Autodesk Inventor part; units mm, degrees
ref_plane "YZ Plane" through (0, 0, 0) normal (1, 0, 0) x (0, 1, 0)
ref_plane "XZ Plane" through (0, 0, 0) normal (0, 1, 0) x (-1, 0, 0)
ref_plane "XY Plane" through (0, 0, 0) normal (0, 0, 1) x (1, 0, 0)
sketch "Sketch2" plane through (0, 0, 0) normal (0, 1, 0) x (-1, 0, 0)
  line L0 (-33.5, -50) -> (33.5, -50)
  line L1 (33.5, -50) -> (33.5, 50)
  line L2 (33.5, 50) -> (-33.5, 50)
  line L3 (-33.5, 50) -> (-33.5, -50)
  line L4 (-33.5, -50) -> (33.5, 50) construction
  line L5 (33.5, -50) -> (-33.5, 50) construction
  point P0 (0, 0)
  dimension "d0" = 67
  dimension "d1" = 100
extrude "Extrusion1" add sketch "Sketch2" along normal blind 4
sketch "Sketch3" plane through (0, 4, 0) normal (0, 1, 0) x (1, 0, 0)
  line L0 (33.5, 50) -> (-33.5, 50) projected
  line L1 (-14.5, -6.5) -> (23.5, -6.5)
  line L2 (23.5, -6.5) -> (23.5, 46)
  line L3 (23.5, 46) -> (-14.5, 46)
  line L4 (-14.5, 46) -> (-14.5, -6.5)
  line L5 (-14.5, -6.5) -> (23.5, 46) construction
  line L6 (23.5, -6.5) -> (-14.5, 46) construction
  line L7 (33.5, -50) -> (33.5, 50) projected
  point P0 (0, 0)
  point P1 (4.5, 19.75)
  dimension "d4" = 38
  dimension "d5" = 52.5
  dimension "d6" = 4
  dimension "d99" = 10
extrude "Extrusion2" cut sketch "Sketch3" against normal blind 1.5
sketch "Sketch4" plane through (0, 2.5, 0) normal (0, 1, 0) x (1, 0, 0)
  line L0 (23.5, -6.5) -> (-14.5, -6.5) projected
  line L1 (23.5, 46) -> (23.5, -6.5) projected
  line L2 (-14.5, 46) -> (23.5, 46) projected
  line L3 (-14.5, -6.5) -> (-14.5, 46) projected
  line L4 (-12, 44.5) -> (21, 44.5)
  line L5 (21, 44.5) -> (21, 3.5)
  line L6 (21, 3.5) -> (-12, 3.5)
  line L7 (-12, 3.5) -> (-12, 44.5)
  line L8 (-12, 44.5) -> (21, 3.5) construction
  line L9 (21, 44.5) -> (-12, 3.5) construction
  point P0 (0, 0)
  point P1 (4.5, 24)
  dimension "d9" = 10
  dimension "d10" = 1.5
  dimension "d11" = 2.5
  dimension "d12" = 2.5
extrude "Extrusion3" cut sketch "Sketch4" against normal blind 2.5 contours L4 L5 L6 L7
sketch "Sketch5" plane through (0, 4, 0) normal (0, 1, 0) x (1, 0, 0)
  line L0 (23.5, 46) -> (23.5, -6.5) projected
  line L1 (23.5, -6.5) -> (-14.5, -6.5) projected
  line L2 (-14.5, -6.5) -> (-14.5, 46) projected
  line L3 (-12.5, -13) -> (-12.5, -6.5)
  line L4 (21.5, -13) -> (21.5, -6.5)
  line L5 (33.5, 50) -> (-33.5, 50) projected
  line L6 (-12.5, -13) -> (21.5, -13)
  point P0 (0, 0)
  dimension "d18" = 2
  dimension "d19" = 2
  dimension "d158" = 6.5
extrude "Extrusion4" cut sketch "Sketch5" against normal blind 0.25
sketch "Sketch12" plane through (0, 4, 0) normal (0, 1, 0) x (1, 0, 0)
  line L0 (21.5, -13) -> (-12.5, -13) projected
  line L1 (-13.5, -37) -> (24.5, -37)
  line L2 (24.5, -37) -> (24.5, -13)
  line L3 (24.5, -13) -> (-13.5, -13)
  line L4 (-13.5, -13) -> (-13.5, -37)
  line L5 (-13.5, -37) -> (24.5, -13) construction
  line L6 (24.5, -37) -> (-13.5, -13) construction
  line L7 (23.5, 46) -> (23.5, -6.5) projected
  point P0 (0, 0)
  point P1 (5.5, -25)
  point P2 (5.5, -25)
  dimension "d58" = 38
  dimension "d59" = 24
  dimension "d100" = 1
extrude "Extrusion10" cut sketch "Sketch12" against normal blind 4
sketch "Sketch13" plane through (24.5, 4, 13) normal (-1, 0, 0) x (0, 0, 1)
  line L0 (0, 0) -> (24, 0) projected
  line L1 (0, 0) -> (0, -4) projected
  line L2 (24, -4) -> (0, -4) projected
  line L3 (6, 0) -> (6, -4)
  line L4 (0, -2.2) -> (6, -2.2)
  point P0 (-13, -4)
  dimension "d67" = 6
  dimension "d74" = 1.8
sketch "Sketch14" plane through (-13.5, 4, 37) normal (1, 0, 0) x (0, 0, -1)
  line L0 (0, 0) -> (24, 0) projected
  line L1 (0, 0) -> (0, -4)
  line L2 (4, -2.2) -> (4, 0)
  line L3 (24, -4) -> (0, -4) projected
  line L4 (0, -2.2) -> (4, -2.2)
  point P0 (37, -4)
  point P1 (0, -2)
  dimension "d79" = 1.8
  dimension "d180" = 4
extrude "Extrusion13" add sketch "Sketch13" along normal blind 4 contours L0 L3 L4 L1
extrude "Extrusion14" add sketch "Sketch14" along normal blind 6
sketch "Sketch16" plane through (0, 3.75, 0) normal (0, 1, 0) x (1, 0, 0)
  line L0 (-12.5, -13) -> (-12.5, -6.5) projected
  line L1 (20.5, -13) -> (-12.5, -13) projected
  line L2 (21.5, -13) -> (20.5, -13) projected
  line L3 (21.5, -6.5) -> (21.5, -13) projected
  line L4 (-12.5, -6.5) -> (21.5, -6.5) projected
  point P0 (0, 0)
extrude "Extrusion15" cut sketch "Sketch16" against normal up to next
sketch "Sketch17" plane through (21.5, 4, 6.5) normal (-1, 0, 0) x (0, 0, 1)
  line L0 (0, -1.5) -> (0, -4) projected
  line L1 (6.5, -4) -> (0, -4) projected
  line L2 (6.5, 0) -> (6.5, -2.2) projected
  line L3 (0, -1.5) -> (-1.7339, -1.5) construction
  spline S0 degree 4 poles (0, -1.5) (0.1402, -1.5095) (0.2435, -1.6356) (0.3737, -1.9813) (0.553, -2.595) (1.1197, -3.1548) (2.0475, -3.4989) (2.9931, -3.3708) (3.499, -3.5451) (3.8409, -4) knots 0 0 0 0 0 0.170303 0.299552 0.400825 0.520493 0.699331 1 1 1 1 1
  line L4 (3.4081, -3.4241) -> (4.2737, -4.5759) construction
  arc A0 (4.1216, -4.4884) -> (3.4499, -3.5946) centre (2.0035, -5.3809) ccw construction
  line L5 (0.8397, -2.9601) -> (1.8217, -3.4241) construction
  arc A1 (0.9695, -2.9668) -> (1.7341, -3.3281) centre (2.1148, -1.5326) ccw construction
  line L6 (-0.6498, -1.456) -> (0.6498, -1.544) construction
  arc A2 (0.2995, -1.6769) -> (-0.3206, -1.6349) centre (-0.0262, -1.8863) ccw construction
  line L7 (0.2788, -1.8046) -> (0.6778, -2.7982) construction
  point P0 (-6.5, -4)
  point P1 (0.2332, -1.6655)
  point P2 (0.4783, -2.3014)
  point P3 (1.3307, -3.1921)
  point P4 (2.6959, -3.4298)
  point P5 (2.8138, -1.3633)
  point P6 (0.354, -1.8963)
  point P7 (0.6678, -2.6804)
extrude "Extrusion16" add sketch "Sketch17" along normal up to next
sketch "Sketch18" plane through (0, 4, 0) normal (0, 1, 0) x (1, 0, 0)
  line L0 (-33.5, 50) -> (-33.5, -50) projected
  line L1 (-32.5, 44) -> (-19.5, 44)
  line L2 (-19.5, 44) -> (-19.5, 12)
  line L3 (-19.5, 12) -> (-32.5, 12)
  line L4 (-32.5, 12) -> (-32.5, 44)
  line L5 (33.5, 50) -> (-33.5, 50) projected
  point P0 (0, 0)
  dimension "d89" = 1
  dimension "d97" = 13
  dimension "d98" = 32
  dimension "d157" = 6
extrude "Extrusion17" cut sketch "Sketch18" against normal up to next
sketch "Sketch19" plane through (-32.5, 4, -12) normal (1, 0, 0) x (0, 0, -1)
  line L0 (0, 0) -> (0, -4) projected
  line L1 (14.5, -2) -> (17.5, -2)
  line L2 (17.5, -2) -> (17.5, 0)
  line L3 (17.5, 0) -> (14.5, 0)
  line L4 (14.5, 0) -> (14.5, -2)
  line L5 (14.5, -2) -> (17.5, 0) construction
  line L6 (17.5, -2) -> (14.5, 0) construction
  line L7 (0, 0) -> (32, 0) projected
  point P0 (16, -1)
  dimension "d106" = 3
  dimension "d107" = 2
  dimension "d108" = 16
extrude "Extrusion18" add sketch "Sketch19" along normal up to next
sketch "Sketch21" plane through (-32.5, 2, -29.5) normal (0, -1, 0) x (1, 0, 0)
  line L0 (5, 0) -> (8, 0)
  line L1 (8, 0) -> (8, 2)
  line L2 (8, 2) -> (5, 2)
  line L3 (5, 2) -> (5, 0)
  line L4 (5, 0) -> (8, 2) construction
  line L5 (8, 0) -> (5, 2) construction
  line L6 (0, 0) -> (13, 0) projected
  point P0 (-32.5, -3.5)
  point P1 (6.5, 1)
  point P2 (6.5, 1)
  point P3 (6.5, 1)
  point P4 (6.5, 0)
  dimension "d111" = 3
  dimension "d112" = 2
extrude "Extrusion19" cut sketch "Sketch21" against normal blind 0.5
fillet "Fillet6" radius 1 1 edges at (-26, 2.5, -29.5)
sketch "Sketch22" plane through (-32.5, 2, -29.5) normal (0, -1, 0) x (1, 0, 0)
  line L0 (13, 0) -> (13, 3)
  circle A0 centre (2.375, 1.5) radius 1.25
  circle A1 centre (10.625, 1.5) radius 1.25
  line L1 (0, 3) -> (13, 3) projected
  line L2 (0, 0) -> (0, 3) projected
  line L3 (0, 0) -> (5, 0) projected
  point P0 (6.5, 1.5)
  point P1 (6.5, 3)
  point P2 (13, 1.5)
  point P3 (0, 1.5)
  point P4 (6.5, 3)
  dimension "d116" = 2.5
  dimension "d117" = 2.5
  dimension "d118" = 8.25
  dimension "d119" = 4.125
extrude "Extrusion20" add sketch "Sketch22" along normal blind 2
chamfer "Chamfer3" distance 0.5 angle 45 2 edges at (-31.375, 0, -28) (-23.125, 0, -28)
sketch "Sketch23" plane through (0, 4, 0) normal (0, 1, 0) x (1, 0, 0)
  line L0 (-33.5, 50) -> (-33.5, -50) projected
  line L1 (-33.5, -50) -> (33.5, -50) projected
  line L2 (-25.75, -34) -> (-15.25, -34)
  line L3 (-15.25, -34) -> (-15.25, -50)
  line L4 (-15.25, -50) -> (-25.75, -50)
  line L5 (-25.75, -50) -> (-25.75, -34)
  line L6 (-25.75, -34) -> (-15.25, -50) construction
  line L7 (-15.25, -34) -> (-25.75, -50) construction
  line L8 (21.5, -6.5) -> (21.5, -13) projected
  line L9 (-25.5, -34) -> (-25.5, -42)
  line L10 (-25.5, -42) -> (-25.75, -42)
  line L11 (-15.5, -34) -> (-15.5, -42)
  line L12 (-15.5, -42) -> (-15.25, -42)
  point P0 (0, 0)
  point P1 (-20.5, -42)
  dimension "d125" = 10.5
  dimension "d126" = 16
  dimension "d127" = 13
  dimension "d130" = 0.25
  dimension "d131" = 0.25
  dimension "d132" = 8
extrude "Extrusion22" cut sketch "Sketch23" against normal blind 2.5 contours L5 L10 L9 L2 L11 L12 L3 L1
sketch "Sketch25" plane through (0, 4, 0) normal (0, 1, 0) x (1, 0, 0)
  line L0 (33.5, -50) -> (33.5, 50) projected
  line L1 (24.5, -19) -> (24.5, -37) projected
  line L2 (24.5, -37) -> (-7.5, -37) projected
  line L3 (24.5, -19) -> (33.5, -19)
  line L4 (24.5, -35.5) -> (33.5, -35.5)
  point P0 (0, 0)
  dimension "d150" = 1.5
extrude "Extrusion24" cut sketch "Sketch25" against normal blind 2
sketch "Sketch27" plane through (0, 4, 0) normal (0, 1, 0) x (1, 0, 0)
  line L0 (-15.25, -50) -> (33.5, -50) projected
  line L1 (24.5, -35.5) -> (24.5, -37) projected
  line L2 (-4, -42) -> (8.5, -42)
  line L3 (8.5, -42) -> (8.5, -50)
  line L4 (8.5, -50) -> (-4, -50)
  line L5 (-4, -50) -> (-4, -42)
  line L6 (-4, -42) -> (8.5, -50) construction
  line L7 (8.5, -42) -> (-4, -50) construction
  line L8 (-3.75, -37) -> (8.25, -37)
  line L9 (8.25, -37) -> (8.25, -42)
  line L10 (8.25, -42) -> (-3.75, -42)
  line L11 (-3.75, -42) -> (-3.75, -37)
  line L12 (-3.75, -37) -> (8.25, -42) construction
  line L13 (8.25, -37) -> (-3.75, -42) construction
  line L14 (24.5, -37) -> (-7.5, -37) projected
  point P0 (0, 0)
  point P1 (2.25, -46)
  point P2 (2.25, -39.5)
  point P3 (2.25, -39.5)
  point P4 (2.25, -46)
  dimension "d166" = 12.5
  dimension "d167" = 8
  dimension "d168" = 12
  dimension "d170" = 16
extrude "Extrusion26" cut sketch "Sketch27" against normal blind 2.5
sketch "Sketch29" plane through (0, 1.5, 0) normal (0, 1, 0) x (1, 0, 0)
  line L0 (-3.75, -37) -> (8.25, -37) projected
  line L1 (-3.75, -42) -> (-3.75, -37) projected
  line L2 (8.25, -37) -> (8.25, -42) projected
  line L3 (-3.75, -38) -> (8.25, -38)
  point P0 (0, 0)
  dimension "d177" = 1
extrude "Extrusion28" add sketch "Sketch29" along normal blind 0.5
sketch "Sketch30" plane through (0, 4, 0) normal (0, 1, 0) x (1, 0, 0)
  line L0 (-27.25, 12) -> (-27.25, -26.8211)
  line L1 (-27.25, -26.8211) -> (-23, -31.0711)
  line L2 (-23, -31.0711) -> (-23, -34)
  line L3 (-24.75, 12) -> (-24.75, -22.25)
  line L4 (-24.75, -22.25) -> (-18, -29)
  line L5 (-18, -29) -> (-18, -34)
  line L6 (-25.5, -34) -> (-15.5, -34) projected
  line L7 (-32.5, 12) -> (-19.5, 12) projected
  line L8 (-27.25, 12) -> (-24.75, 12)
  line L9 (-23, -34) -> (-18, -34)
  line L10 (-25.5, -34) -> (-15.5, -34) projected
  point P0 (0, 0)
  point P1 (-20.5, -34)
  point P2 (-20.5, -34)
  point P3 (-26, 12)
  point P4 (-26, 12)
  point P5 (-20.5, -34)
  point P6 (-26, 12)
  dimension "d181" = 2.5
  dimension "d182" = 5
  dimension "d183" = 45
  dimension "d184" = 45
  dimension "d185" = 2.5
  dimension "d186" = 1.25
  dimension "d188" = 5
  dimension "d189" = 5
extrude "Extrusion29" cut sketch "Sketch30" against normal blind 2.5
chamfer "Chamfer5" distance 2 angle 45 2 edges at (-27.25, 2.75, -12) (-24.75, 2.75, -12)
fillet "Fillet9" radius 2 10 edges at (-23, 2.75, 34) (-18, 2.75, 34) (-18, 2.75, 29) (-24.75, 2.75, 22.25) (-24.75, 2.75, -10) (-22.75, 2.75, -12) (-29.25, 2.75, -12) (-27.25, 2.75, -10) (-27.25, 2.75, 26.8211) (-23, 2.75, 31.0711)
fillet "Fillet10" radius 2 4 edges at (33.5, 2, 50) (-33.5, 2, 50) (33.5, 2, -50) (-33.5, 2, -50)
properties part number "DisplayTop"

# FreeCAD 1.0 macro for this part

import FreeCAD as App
import Part
import Sketcher
Q = App.Units.Quantity


def edges_at(feature, points):
    """Names of the edges that pass closest to the given points."""
    edges = feature.Shape.Edges
    near = lambda p: min(range(len(edges)), key=lambda i: edges[i].distToShape(Part.Vertex(*p))[0])
    return sorted({f"Edge{near(p) + 1}" for p in points})

doc = App.newDocument("Part")
body = doc.addObject("PartDesign::Body", "Body")

# Sketch on XZ plane
sketch1 = body.newObject("Sketcher::SketchObject", "Sketch")
sketch1.AttachmentSupport = (doc.getObject("XZ_Plane"), [""])
sketch1.MapMode = "FlatFace"
sketch1.addGeometry([
    Part.LineSegment(App.Vector(34, 50, 0), App.Vector(34, -50, 0)),
    Part.LineSegment(App.Vector(34, -50, 0), App.Vector(-34, -50, 0)),
    Part.LineSegment(App.Vector(-34, -50, 0), App.Vector(-34, 50, 0)),
    Part.LineSegment(App.Vector(-34, 50, 0), App.Vector(34, 50, 0)),
], False)
sketch1.addConstraint([
    Sketcher.Constraint("Coincident", 0, 2, 1, 1),
    Sketcher.Constraint("Coincident", 1, 2, 2, 1),
    Sketcher.Constraint("Coincident", 2, 2, 3, 1),
    Sketcher.Constraint("Coincident", 3, 2, 0, 1),
    Sketcher.Constraint("Vertical", 0),
    Sketcher.Constraint("Horizontal", 1),
    Sketcher.Constraint("Vertical", 2),
    Sketcher.Constraint("Horizontal", 3),
    Sketcher.Constraint("Symmetric", 0, 2, 2, 2, -1, 1),
    Sketcher.Constraint("DistanceX", 1, 2, 1, 1, Q("67 mm")),
    Sketcher.Constraint("DistanceY", 0, 2, 0, 1, Q("100 mm")),
])
pad1 = body.newObject("PartDesign::Pad", "Pad")
pad1.Profile = sketch1
pad1.Length = 4
pad1.Reversed = True

# Sketch on XZ plane
sketch2 = body.newObject("Sketcher::SketchObject", "Sketch001")
sketch2.AttachmentSupport = (doc.getObject("XZ_Plane"), [""])
sketch2.MapMode = "FlatFace"
sketch2.AttachmentOffset = App.Placement(App.Vector(0, 0, -4), App.Rotation())
sketch2.addGeometry([
    Part.LineSegment(App.Vector(-14, -46, 0), App.Vector(-14, 6, 0)),
    Part.LineSegment(App.Vector(-14, 6, 0), App.Vector(24, 6, 0)),
    Part.LineSegment(App.Vector(24, 6, 0), App.Vector(24, -46, 0)),
    Part.LineSegment(App.Vector(24, -46, 0), App.Vector(-14, -46, 0)),
], False)
sketch2.addConstraint([
    Sketcher.Constraint("Coincident", 0, 2, 1, 1),
    Sketcher.Constraint("Coincident", 1, 2, 2, 1),
    Sketcher.Constraint("Coincident", 2, 2, 3, 1),
    Sketcher.Constraint("Coincident", 3, 2, 0, 1),
    Sketcher.Constraint("Vertical", 0),
    Sketcher.Constraint("Horizontal", 1),
    Sketcher.Constraint("Vertical", 2),
    Sketcher.Constraint("Horizontal", 3),
    Sketcher.Constraint("DistanceX", 1, 1, 1, 2, Q("38 mm")),
    Sketcher.Constraint("DistanceY", 0, 1, 0, 2, Q("52.5 mm")),
    Sketcher.Constraint("DistanceY", 2, 2, -1, 1, Q("46 mm")),
    Sketcher.Constraint("DistanceX", 0, 2, -1, 1, Q("14.5 mm")),
])
pocket1 = body.newObject("PartDesign::Pocket", "Pocket")
pocket1.Profile = sketch2
pocket1.Length = 1.5
pocket1.Reversed = True

# Sketch on XZ plane
sketch3 = body.newObject("Sketcher::SketchObject", "Sketch002")
sketch3.AttachmentSupport = (doc.getObject("XZ_Plane"), [""])
sketch3.MapMode = "FlatFace"
sketch3.AttachmentOffset = App.Placement(App.Vector(0, 0, -2.5), App.Rotation())
sketch3.addGeometry([
    Part.LineSegment(App.Vector(21, -44, 0), App.Vector(-12, -44, 0)),
    Part.LineSegment(App.Vector(-12, -44, 0), App.Vector(-12, -4, 0)),
    Part.LineSegment(App.Vector(-12, -4, 0), App.Vector(21, -4, 0)),
    Part.LineSegment(App.Vector(21, -4, 0), App.Vector(21, -44, 0)),
], False)
sketch3.addConstraint([
    Sketcher.Constraint("Coincident", 0, 2, 1, 1),
    Sketcher.Constraint("Coincident", 1, 2, 2, 1),
    Sketcher.Constraint("Coincident", 2, 2, 3, 1),
    Sketcher.Constraint("Coincident", 3, 2, 0, 1),
    Sketcher.Constraint("Horizontal", 0),
    Sketcher.Constraint("Vertical", 1),
    Sketcher.Constraint("Horizontal", 2),
    Sketcher.Constraint("Vertical", 3),
    Sketcher.Constraint("DistanceX", 0, 2, 0, 1, Q("33 mm")),
    Sketcher.Constraint("DistanceY", 1, 1, 1, 2, Q("41 mm")),
    Sketcher.Constraint("DistanceX", 0, 2, -1, 1, Q("12 mm")),
    Sketcher.Constraint("DistanceY", 0, 2, -1, 1, Q("44.5 mm")),
])
pocket2 = body.newObject("PartDesign::Pocket", "Pocket001")
pocket2.Profile = sketch3
pocket2.Length = 2.5
pocket2.Reversed = True

# Sketch on XZ plane
sketch4 = body.newObject("Sketcher::SketchObject", "Sketch003")
sketch4.AttachmentSupport = (doc.getObject("XZ_Plane"), [""])
sketch4.MapMode = "FlatFace"
sketch4.AttachmentOffset = App.Placement(App.Vector(0, 0, -4), App.Rotation())
sketch4.addGeometry([
    Part.LineSegment(App.Vector(22, 13, 0), App.Vector(22, 6, 0)),
    Part.LineSegment(App.Vector(22, 6, 0), App.Vector(-12, 6, 0)),
    Part.LineSegment(App.Vector(-12, 6, 0), App.Vector(-12, 13, 0)),
    Part.LineSegment(App.Vector(-12, 13, 0), App.Vector(22, 13, 0)),
], False)
sketch4.addConstraint([
    Sketcher.Constraint("Coincident", 0, 2, 1, 1),
    Sketcher.Constraint("Coincident", 1, 2, 2, 1),
    Sketcher.Constraint("Coincident", 2, 2, 3, 1),
    Sketcher.Constraint("Coincident", 3, 2, 0, 1),
    Sketcher.Constraint("Vertical", 0),
    Sketcher.Constraint("Horizontal", 1),
    Sketcher.Constraint("Vertical", 2),
    Sketcher.Constraint("Horizontal", 3),
    Sketcher.Constraint("DistanceY", 0, 2, 0, 1, Q("6.5 mm")),
    Sketcher.Constraint("DistanceY", -1, 1, 0, 2, Q("6.5 mm")),
    Sketcher.Constraint("DistanceX", 1, 2, 1, 1, Q("34 mm")),
    Sketcher.Constraint("DistanceX", -1, 1, 0, 2, Q("21.5 mm")),
])
pocket3 = body.newObject("PartDesign::Pocket", "Pocket002")
pocket3.Profile = sketch4
pocket3.Length = 0.25
pocket3.Reversed = True

# Sketch on XZ plane
sketch5 = body.newObject("Sketcher::SketchObject", "Sketch004")
sketch5.AttachmentSupport = (doc.getObject("XZ_Plane"), [""])
sketch5.MapMode = "FlatFace"
sketch5.AttachmentOffset = App.Placement(App.Vector(0, 0, -4), App.Rotation())
sketch5.addGeometry([
    Part.LineSegment(App.Vector(24, 13, 0), App.Vector(-14, 13, 0)),
    Part.LineSegment(App.Vector(-14, 13, 0), App.Vector(-14, 37, 0)),
    Part.LineSegment(App.Vector(-14, 37, 0), App.Vector(24, 37, 0)),
    Part.LineSegment(App.Vector(24, 37, 0), App.Vector(24, 13, 0)),
], False)
sketch5.addConstraint([
    Sketcher.Constraint("Coincident", 0, 2, 1, 1),
    Sketcher.Constraint("Coincident", 1, 2, 2, 1),
    Sketcher.Constraint("Coincident", 2, 2, 3, 1),
    Sketcher.Constraint("Coincident", 3, 2, 0, 1),
    Sketcher.Constraint("Horizontal", 0),
    Sketcher.Constraint("Vertical", 1),
    Sketcher.Constraint("Horizontal", 2),
    Sketcher.Constraint("Vertical", 3),
    Sketcher.Constraint("DistanceX", 0, 2, 0, 1, Q("38 mm")),
    Sketcher.Constraint("DistanceY", 1, 1, 1, 2, Q("24 mm")),
    Sketcher.Constraint("DistanceY", -1, 1, 0, 2, Q("13 mm")),
    Sketcher.Constraint("DistanceX", 0, 2, -1, 1, Q("13.5 mm")),
])
pocket4 = body.newObject("PartDesign::Pocket", "Pocket003")
pocket4.Profile = sketch5
pocket4.Length = 4
pocket4.Reversed = True

# Sketch on YZ plane
sketch6 = body.newObject("Sketcher::SketchObject", "Sketch005")
sketch6.AttachmentSupport = (doc.getObject("YZ_Plane"), [""])
sketch6.MapMode = "FlatFace"
sketch6.AttachmentOffset = App.Placement(App.Vector(0, 0, 24.5), App.Rotation())
sketch6.addGeometry([
    Part.LineSegment(App.Vector(4, 19, 0), App.Vector(4, 13, 0)),
    Part.LineSegment(App.Vector(4, 13, 0), App.Vector(1.8, 13, 0)),
    Part.LineSegment(App.Vector(1.8, 13, 0), App.Vector(1.8, 19, 0)),
    Part.LineSegment(App.Vector(1.8, 19, 0), App.Vector(4, 19, 0)),
], False)
sketch6.addConstraint([
    Sketcher.Constraint("Coincident", 0, 2, 1, 1),
    Sketcher.Constraint("Coincident", 1, 2, 2, 1),
    Sketcher.Constraint("Coincident", 2, 2, 3, 1),
    Sketcher.Constraint("Coincident", 3, 2, 0, 1),
    Sketcher.Constraint("Vertical", 0),
    Sketcher.Constraint("Horizontal", 1),
    Sketcher.Constraint("Vertical", 2),
    Sketcher.Constraint("Horizontal", 3),
    Sketcher.Constraint("DistanceY", 0, 2, 0, 1, Q("6 mm")),
    Sketcher.Constraint("DistanceX", -1, 1, 1, 2, Q("1.8 mm")),
    Sketcher.Constraint("DistanceX", 1, 2, 1, 1, Q("2.2 mm")),
    Sketcher.Constraint("DistanceY", -1, 1, 0, 2, Q("13 mm")),
])
pad2 = body.newObject("PartDesign::Pad", "Pad001")
pad2.Profile = sketch6
pad2.Length = 4
pad2.Reversed = True

# Sketch on YZ plane
sketch7 = body.newObject("Sketcher::SketchObject", "Sketch006")
sketch7.AttachmentSupport = (doc.getObject("YZ_Plane"), [""])
sketch7.MapMode = "FlatFace"
sketch7.AttachmentOffset = App.Placement(App.Vector(0, 0, -13.5), App.Rotation())
sketch7.addGeometry([
    Part.LineSegment(App.Vector(4, 33, 0), App.Vector(4, 37, 0)),
    Part.LineSegment(App.Vector(4, 37, 0), App.Vector(1.8, 37, 0)),
    Part.LineSegment(App.Vector(1.8, 37, 0), App.Vector(1.8, 33, 0)),
    Part.LineSegment(App.Vector(1.8, 33, 0), App.Vector(4, 33, 0)),
], False)
sketch7.addConstraint([
    Sketcher.Constraint("Coincident", 0, 2, 1, 1),
    Sketcher.Constraint("Coincident", 1, 2, 2, 1),
    Sketcher.Constraint("Coincident", 2, 2, 3, 1),
    Sketcher.Constraint("Coincident", 3, 2, 0, 1),
    Sketcher.Constraint("Vertical", 0),
    Sketcher.Constraint("Horizontal", 1),
    Sketcher.Constraint("Vertical", 2),
    Sketcher.Constraint("Horizontal", 3),
    Sketcher.Constraint("DistanceY", 0, 1, 0, 2, Q("4 mm")),
    Sketcher.Constraint("DistanceX", -1, 1, 0, 2, Q("4 mm")),
    Sketcher.Constraint("DistanceX", -1, 1, 1, 2, Q("1.8 mm")),
    Sketcher.Constraint("DistanceY", -1, 1, 0, 2, Q("37 mm")),
])
pad3 = body.newObject("PartDesign::Pad", "Pad002")
pad3.Profile = sketch7
pad3.Length = 6

# Sketch on XZ plane
sketch8 = body.newObject("Sketcher::SketchObject", "Sketch007")
sketch8.AttachmentSupport = (doc.getObject("XZ_Plane"), [""])
sketch8.MapMode = "FlatFace"
sketch8.AttachmentOffset = App.Placement(App.Vector(0, 0, -3.75), App.Rotation())
sketch8.addGeometry([
    Part.LineSegment(App.Vector(-12, 6, 0), App.Vector(-12, 13, 0)),
    Part.LineSegment(App.Vector(-12, 13, 0), App.Vector(22, 13, 0)),
    Part.LineSegment(App.Vector(22, 13, 0), App.Vector(22, 6, 0)),
    Part.LineSegment(App.Vector(22, 6, 0), App.Vector(-12, 6, 0)),
], False)
sketch8.addConstraint([
    Sketcher.Constraint("Coincident", 0, 2, 1, 1),
    Sketcher.Constraint("Coincident", 1, 2, 2, 1),
    Sketcher.Constraint("Coincident", 2, 2, 3, 1),
    Sketcher.Constraint("Coincident", 3, 2, 0, 1),
    Sketcher.Constraint("Vertical", 0),
    Sketcher.Constraint("Horizontal", 1),
    Sketcher.Constraint("Vertical", 2),
    Sketcher.Constraint("Horizontal", 3),
    Sketcher.Constraint("DistanceX", 1, 1, 1, 2, Q("34 mm")),
    Sketcher.Constraint("DistanceY", 0, 1, 0, 2, Q("6.5 mm")),
    Sketcher.Constraint("DistanceY", -1, 1, 0, 2, Q("13 mm")),
    Sketcher.Constraint("DistanceX", 0, 2, -1, 1, Q("12.5 mm")),
])
pocket5 = body.newObject("PartDesign::Pocket", "Pocket004")
pocket5.Profile = sketch8
pocket5.Type = "UpToFirst"
pocket5.Reversed = True

# Sketch on YZ plane
sketch9 = body.newObject("Sketcher::SketchObject", "Sketch008")
sketch9.AttachmentSupport = (doc.getObject("YZ_Plane"), [""])
sketch9.MapMode = "FlatFace"
sketch9.AttachmentOffset = App.Placement(App.Vector(0, 0, 21.5), App.Rotation())
sketch9.addGeometry([
    Part.BSplineCurve([App.Vector(2.5, 6.5, 0), App.Vector(2.4905, 6.6402, 0), App.Vector(2.3644, 6.7435, 0), App.Vector(2.0187, 6.8737, 0), App.Vector(1.405, 7.053, 0), App.Vector(0.8452, 7.6197, 0), App.Vector(0.5011, 8.5475, 0), App.Vector(0.6292, 9.4931, 0), App.Vector(0.4549, 9.999, 0), App.Vector(0, 10.3409, 0)], [5, 1, 1, 1, 1, 1, 5], [0, 0.170303, 0.299552, 0.400825, 0.520493, 0.699331, 1], False, 4, [1, 1, 1, 1, 1, 1, 1, 1, 1, 1], False),
    Part.LineSegment(App.Vector(2.5, 6.5, 0), App.Vector(0, 6.5, 0)),
    Part.LineSegment(App.Vector(0, 6.5, 0), App.Vector(0, 10.3409, 0)),
], False)
sketch9.addConstraint([
    Sketcher.Constraint("Block", 0),
    Sketcher.Constraint("Coincident", 0, 1, 1, 1),
    Sketcher.Constraint("Coincident", 1, 2, 2, 1),
    Sketcher.Constraint("Coincident", 2, 2, 0, 2),
    Sketcher.Constraint("Horizontal", 1),
    Sketcher.Constraint("Vertical", 2),
])
pad4 = body.newObject("PartDesign::Pad", "Pad003")
pad4.Profile = sketch9
pad4.Type = "UpToFirst"
pad4.Reversed = True

# Sketch on XZ plane
sketch10 = body.newObject("Sketcher::SketchObject", "Sketch009")
sketch10.AttachmentSupport = (doc.getObject("XZ_Plane"), [""])
sketch10.MapMode = "FlatFace"
sketch10.AttachmentOffset = App.Placement(App.Vector(0, 0, -4), App.Rotation())
sketch10.addGeometry([
    Part.LineSegment(App.Vector(-20, -44, 0), App.Vector(-32, -44, 0)),
    Part.LineSegment(App.Vector(-32, -44, 0), App.Vector(-32, -12, 0)),
    Part.LineSegment(App.Vector(-32, -12, 0), App.Vector(-20, -12, 0)),
    Part.LineSegment(App.Vector(-20, -12, 0), App.Vector(-20, -44, 0)),
], False)
sketch10.addConstraint([
    Sketcher.Constraint("Coincident", 0, 2, 1, 1),
    Sketcher.Constraint("Coincident", 1, 2, 2, 1),
    Sketcher.Constraint("Coincident", 2, 2, 3, 1),
    Sketcher.Constraint("Coincident", 3, 2, 0, 1),
    Sketcher.Constraint("Horizontal", 0),
    Sketcher.Constraint("Vertical", 1),
    Sketcher.Constraint("Horizontal", 2),
    Sketcher.Constraint("Vertical", 3),
    Sketcher.Constraint("DistanceX", 0, 2, 0, 1, Q("13 mm")),
    Sketcher.Constraint("DistanceY", 1, 1, 1, 2, Q("32 mm")),
    Sketcher.Constraint("DistanceY", 0, 2, -1, 1, Q("44 mm")),
    Sketcher.Constraint("DistanceX", 0, 2, -1, 1, Q("32.5 mm")),
])
pocket6 = body.newObject("PartDesign::Pocket", "Pocket005")
pocket6.Profile = sketch10
pocket6.Type = "UpToFirst"
pocket6.Reversed = True

# Sketch on YZ plane
sketch11 = body.newObject("Sketcher::SketchObject", "Sketch010")
sketch11.AttachmentSupport = (doc.getObject("YZ_Plane"), [""])
sketch11.MapMode = "FlatFace"
sketch11.AttachmentOffset = App.Placement(App.Vector(0, 0, -32.5), App.Rotation())
sketch11.addGeometry([
    Part.LineSegment(App.Vector(4, -26.5, 0), App.Vector(2, -26.5, 0)),
    Part.LineSegment(App.Vector(2, -26.5, 0), App.Vector(2, -29.5, 0)),
    Part.LineSegment(App.Vector(2, -29.5, 0), App.Vector(4, -29.5, 0)),
    Part.LineSegment(App.Vector(4, -29.5, 0), App.Vector(4, -26.5, 0)),
], False)
sketch11.addConstraint([
    Sketcher.Constraint("Coincident", 0, 2, 1, 1),
    Sketcher.Constraint("Coincident", 1, 2, 2, 1),
    Sketcher.Constraint("Coincident", 2, 2, 3, 1),
    Sketcher.Constraint("Coincident", 3, 2, 0, 1),
    Sketcher.Constraint("Horizontal", 0),
    Sketcher.Constraint("Vertical", 1),
    Sketcher.Constraint("Horizontal", 2),
    Sketcher.Constraint("Vertical", 3),
    Sketcher.Constraint("DistanceX", 0, 2, 0, 1, Q("2 mm")),
    Sketcher.Constraint("DistanceY", 1, 2, 1, 1, Q("3 mm")),
    Sketcher.Constraint("DistanceX", -1, 1, 0, 2, Q("2 mm")),
    Sketcher.Constraint("DistanceY", 0, 2, -1, 1, Q("26.5 mm")),
])
pad5 = body.newObject("PartDesign::Pad", "Pad004")
pad5.Profile = sketch11
pad5.Type = "UpToFirst"

# Sketch on XZ plane
sketch12 = body.newObject("Sketcher::SketchObject", "Sketch011")
sketch12.AttachmentSupport = (doc.getObject("XZ_Plane"), [""])
sketch12.MapMode = "FlatFace"
sketch12.AttachmentOffset = App.Placement(App.Vector(0, 0, -2), App.Rotation())
sketch12.addGeometry([
    Part.LineSegment(App.Vector(-27.5, -27.5, 0), App.Vector(-27.5, -29.5, 0)),
    Part.LineSegment(App.Vector(-27.5, -29.5, 0), App.Vector(-24.5, -29.5, 0)),
    Part.LineSegment(App.Vector(-24.5, -29.5, 0), App.Vector(-24.5, -27.5, 0)),
    Part.LineSegment(App.Vector(-24.5, -27.5, 0), App.Vector(-27.5, -27.5, 0)),
], False)
sketch12.addConstraint([
    Sketcher.Constraint("Coincident", 0, 2, 1, 1),
    Sketcher.Constraint("Coincident", 1, 2, 2, 1),
    Sketcher.Constraint("Coincident", 2, 2, 3, 1),
    Sketcher.Constraint("Coincident", 3, 2, 0, 1),
    Sketcher.Constraint("Vertical", 0),
    Sketcher.Constraint("Horizontal", 1),
    Sketcher.Constraint("Vertical", 2),
    Sketcher.Constraint("Horizontal", 3),
    Sketcher.Constraint("DistanceX", 1, 1, 1, 2, Q("3 mm")),
    Sketcher.Constraint("DistanceY", 0, 2, 0, 1, Q("2 mm")),
    Sketcher.Constraint("DistanceX", 0, 2, -1, 1, Q("27.5 mm")),
    Sketcher.Constraint("DistanceY", 0, 2, -1, 1, Q("29.5 mm")),
])
pocket7 = body.newObject("PartDesign::Pocket", "Pocket006")
pocket7.Profile = sketch12
pocket7.Length = 0.5
doc.recompute()

fillet = body.newObject("PartDesign::Fillet", "Fillet")
fillet.Base = (pocket7, edges_at(pocket7, [(-26, 2.5, -29.5)]))
fillet.Radius = 1

# Sketch on XZ plane
sketch13 = body.newObject("Sketcher::SketchObject", "Sketch012")
sketch13.AttachmentSupport = (doc.getObject("XZ_Plane"), [""])
sketch13.MapMode = "FlatFace"
sketch13.AttachmentOffset = App.Placement(App.Vector(0, 0, -2), App.Rotation())
sketch13.addGeometry([
    Part.Circle(App.Vector(-30.1, -28, 0), App.Vector(0, 0, 1), 1.2),
    Part.Circle(App.Vector(-21.9, -28, 0), App.Vector(0, 0, 1), 1.2),
], False)
sketch13.addConstraint([
    Sketcher.Constraint("Equal", 0, 1),
    Sketcher.Constraint("Horizontal", 0, 3, 1, 3),
    Sketcher.Constraint("Diameter", 0, Q("2.5 mm")),
    Sketcher.Constraint("DistanceX", 0, 3, 1, 3, Q("8.25 mm")),
    Sketcher.Constraint("DistanceY", 0, 3, -1, 1, Q("28 mm")),
    Sketcher.Constraint("DistanceX", 0, 3, -1, 1, Q("30.125 mm")),
])
pad6 = body.newObject("PartDesign::Pad", "Pad005")
pad6.Profile = sketch13
pad6.Length = 2
doc.recompute()

chamfer = body.newObject("PartDesign::Chamfer", "Chamfer")
chamfer.Base = (pad6, edges_at(pad6, [(-31.375, 0, -28), (-23.125, 0, -28)]))
chamfer.Size = 0.5

# Sketch on XZ plane
sketch14 = body.newObject("Sketcher::SketchObject", "Sketch013")
sketch14.AttachmentSupport = (doc.getObject("XZ_Plane"), [""])
sketch14.MapMode = "FlatFace"
sketch14.AttachmentOffset = App.Placement(App.Vector(0, 0, -4), App.Rotation())
sketch14.addGeometry([
    Part.LineSegment(App.Vector(-25.75, 42, 0), App.Vector(-25.75, 50, 0)),  # 0
    Part.LineSegment(App.Vector(-25.75, 50, 0), App.Vector(-15.25, 50, 0)),  # 1
    Part.LineSegment(App.Vector(-15.25, 50, 0), App.Vector(-15.25, 42, 0)),  # 2
    Part.LineSegment(App.Vector(-15.25, 42, 0), App.Vector(-15.5, 42, 0)),  # 3
    Part.LineSegment(App.Vector(-15.5, 42, 0), App.Vector(-15.5, 34, 0)),  # 4
    Part.LineSegment(App.Vector(-15.5, 34, 0), App.Vector(-25.5, 34, 0)),  # 5
    Part.LineSegment(App.Vector(-25.5, 34, 0), App.Vector(-25.5, 42, 0)),  # 6
    Part.LineSegment(App.Vector(-25.5, 42, 0), App.Vector(-25.75, 42, 0)),  # 7
], False)
sketch14.addConstraint([
    Sketcher.Constraint("Coincident", 0, 2, 1, 1),
    Sketcher.Constraint("Coincident", 1, 2, 2, 1),
    Sketcher.Constraint("Coincident", 2, 2, 3, 1),
    Sketcher.Constraint("Coincident", 3, 2, 4, 1),
    Sketcher.Constraint("Coincident", 4, 2, 5, 1),
    Sketcher.Constraint("Coincident", 5, 2, 6, 1),
    Sketcher.Constraint("Coincident", 6, 2, 7, 1),
    Sketcher.Constraint("Coincident", 7, 2, 0, 1),
    Sketcher.Constraint("Vertical", 0),
    Sketcher.Constraint("Horizontal", 1),
    Sketcher.Constraint("Vertical", 2),
    Sketcher.Constraint("Horizontal", 3),
    Sketcher.Constraint("Vertical", 4),
    Sketcher.Constraint("Horizontal", 5),
    Sketcher.Constraint("Vertical", 6),
    Sketcher.Constraint("Horizontal", 7),
    Sketcher.Constraint("Horizontal", 3, 2, 6, 2),
    Sketcher.Constraint("Equal", 3, 7),
    Sketcher.Constraint("Equal", 2, 4),
    Sketcher.Constraint("DistanceY", 0, 1, 0, 2, Q("8 mm")),
    Sketcher.Constraint("DistanceX", 1, 1, 1, 2, Q("10.5 mm")),
    Sketcher.Constraint("DistanceX", 3, 2, 3, 1, Q("0.25 mm")),
    Sketcher.Constraint("DistanceY", -1, 1, 0, 2, Q("50 mm")),
    Sketcher.Constraint("DistanceX", 3, 2, -1, 1, Q("15.5 mm")),
])
pocket8 = body.newObject("PartDesign::Pocket", "Pocket007")
pocket8.Profile = sketch14
pocket8.Length = 2.5
pocket8.Reversed = True

# Sketch on XZ plane
sketch15 = body.newObject("Sketcher::SketchObject", "Sketch014")
sketch15.AttachmentSupport = (doc.getObject("XZ_Plane"), [""])
sketch15.MapMode = "FlatFace"
sketch15.AttachmentOffset = App.Placement(App.Vector(0, 0, -4), App.Rotation())
sketch15.addGeometry([
    Part.LineSegment(App.Vector(24, 36, 0), App.Vector(34, 36, 0)),
    Part.LineSegment(App.Vector(34, 36, 0), App.Vector(34, 19, 0)),
    Part.LineSegment(App.Vector(34, 19, 0), App.Vector(24, 19, 0)),
    Part.LineSegment(App.Vector(24, 19, 0), App.Vector(24, 36, 0)),
], False)
sketch15.addConstraint([
    Sketcher.Constraint("Coincident", 0, 2, 1, 1),
    Sketcher.Constraint("Coincident", 1, 2, 2, 1),
    Sketcher.Constraint("Coincident", 2, 2, 3, 1),
    Sketcher.Constraint("Coincident", 3, 2, 0, 1),
    Sketcher.Constraint("Horizontal", 0),
    Sketcher.Constraint("Vertical", 1),
    Sketcher.Constraint("Horizontal", 2),
    Sketcher.Constraint("Vertical", 3),
    Sketcher.Constraint("DistanceX", 0, 1, 0, 2, Q("9 mm")),
    Sketcher.Constraint("DistanceY", 1, 2, 1, 1, Q("16.5 mm")),
    Sketcher.Constraint("DistanceY", -1, 1, 1, 2, Q("19 mm")),
    Sketcher.Constraint("DistanceX", -1, 1, 0, 2, Q("33.5 mm")),
])
pocket9 = body.newObject("PartDesign::Pocket", "Pocket008")
pocket9.Profile = sketch15
pocket9.Length = 2
pocket9.Reversed = True

# Sketch on XZ plane
sketch16 = body.newObject("Sketcher::SketchObject", "Sketch015")
sketch16.AttachmentSupport = (doc.getObject("XZ_Plane"), [""])
sketch16.MapMode = "FlatFace"
sketch16.AttachmentOffset = App.Placement(App.Vector(0, 0, -4), App.Rotation())
sketch16.addGeometry([
    Part.LineSegment(App.Vector(-4, 42, 0), App.Vector(-4, 50, 0)),  # 0
    Part.LineSegment(App.Vector(-4, 50, 0), App.Vector(8.5, 50, 0)),  # 1
    Part.LineSegment(App.Vector(8.5, 50, 0), App.Vector(8.5, 42, 0)),  # 2
    Part.LineSegment(App.Vector(8.5, 42, 0), App.Vector(8.25, 42, 0)),  # 3
    Part.LineSegment(App.Vector(8.25, 42, 0), App.Vector(8.25, 37, 0)),  # 4
    Part.LineSegment(App.Vector(8.25, 37, 0), App.Vector(-3.75, 37, 0)),  # 5
    Part.LineSegment(App.Vector(-3.75, 37, 0), App.Vector(-3.75, 42, 0)),  # 6
    Part.LineSegment(App.Vector(-3.75, 42, 0), App.Vector(-4, 42, 0)),  # 7
], False)
sketch16.addConstraint([
    Sketcher.Constraint("Coincident", 0, 2, 1, 1),
    Sketcher.Constraint("Coincident", 1, 2, 2, 1),
    Sketcher.Constraint("Coincident", 2, 2, 3, 1),
    Sketcher.Constraint("Coincident", 3, 2, 4, 1),
    Sketcher.Constraint("Coincident", 4, 2, 5, 1),
    Sketcher.Constraint("Coincident", 5, 2, 6, 1),
    Sketcher.Constraint("Coincident", 6, 2, 7, 1),
    Sketcher.Constraint("Coincident", 7, 2, 0, 1),
    Sketcher.Constraint("Vertical", 0),
    Sketcher.Constraint("Horizontal", 1),
    Sketcher.Constraint("Vertical", 2),
    Sketcher.Constraint("Horizontal", 3),
    Sketcher.Constraint("Vertical", 4),
    Sketcher.Constraint("Horizontal", 5),
    Sketcher.Constraint("Vertical", 6),
    Sketcher.Constraint("Horizontal", 7),
    Sketcher.Constraint("Horizontal", 3, 2, 6, 2),
    Sketcher.Constraint("Equal", 3, 7),
    Sketcher.Constraint("DistanceX", 5, 2, 5, 1, Q("12 mm")),
    Sketcher.Constraint("DistanceY", 0, 1, 0, 2, Q("8 mm")),
    Sketcher.Constraint("DistanceX", 1, 1, 1, 2, Q("12.5 mm")),
    Sketcher.Constraint("DistanceY", 4, 2, 4, 1, Q("5 mm")),
    Sketcher.Constraint("DistanceX", 0, 2, -1, 1, Q("4 mm")),
    Sketcher.Constraint("DistanceY", -1, 1, 0, 2, Q("50 mm")),
])
pocket10 = body.newObject("PartDesign::Pocket", "Pocket009")
pocket10.Profile = sketch16
pocket10.Length = 2.5
pocket10.Reversed = True

# Sketch on XZ plane
sketch17 = body.newObject("Sketcher::SketchObject", "Sketch016")
sketch17.AttachmentSupport = (doc.getObject("XZ_Plane"), [""])
sketch17.MapMode = "FlatFace"
sketch17.AttachmentOffset = App.Placement(App.Vector(0, 0, -1.5), App.Rotation())
sketch17.addGeometry([
    Part.LineSegment(App.Vector(8.2, 37, 0), App.Vector(-3.8, 37, 0)),
    Part.LineSegment(App.Vector(-3.8, 37, 0), App.Vector(-3.8, 38, 0)),
    Part.LineSegment(App.Vector(-3.8, 38, 0), App.Vector(8.2, 38, 0)),
    Part.LineSegment(App.Vector(8.2, 38, 0), App.Vector(8.2, 37, 0)),
], False)
sketch17.addConstraint([
    Sketcher.Constraint("Coincident", 0, 2, 1, 1),
    Sketcher.Constraint("Coincident", 1, 2, 2, 1),
    Sketcher.Constraint("Coincident", 2, 2, 3, 1),
    Sketcher.Constraint("Coincident", 3, 2, 0, 1),
    Sketcher.Constraint("Horizontal", 0),
    Sketcher.Constraint("Vertical", 1),
    Sketcher.Constraint("Horizontal", 2),
    Sketcher.Constraint("Vertical", 3),
    Sketcher.Constraint("DistanceY", 1, 1, 1, 2, Q("1 mm")),
    Sketcher.Constraint("DistanceX", 0, 2, 0, 1, Q("12 mm")),
    Sketcher.Constraint("DistanceY", -1, 1, 0, 2, Q("37 mm")),
    Sketcher.Constraint("DistanceX", 0, 2, -1, 1, Q("3.75 mm")),
])
pad7 = body.newObject("PartDesign::Pad", "Pad006")
pad7.Profile = sketch17
pad7.Length = 0.5
pad7.Reversed = True

# Sketch on XZ plane
sketch18 = body.newObject("Sketcher::SketchObject", "Sketch017")
sketch18.AttachmentSupport = (doc.getObject("XZ_Plane"), [""])
sketch18.MapMode = "FlatFace"
sketch18.AttachmentOffset = App.Placement(App.Vector(0, 0, -4), App.Rotation())
sketch18.addGeometry([
    Part.LineSegment(App.Vector(-24.8, -12, 0), App.Vector(-27.2, -12, 0)),  # 0
    Part.LineSegment(App.Vector(-27.2, -12, 0), App.Vector(-27.2, 26.8, 0)),  # 1
    Part.LineSegment(App.Vector(-27.2, 26.8, 0), App.Vector(-23, 31.1, 0)),  # 2
    Part.LineSegment(App.Vector(-23, 31.1, 0), App.Vector(-23, 34, 0)),  # 3
    Part.LineSegment(App.Vector(-23, 34, 0), App.Vector(-18, 34, 0)),  # 4
    Part.LineSegment(App.Vector(-18, 34, 0), App.Vector(-18, 29, 0)),  # 5
    Part.LineSegment(App.Vector(-18, 29, 0), App.Vector(-24.8, 22.2, 0)),  # 6
    Part.LineSegment(App.Vector(-24.8, 22.2, 0), App.Vector(-24.8, -12, 0)),  # 7
], False)
sketch18.addConstraint([
    Sketcher.Constraint("Coincident", 0, 2, 1, 1),
    Sketcher.Constraint("Coincident", 1, 2, 2, 1),
    Sketcher.Constraint("Coincident", 2, 2, 3, 1),
    Sketcher.Constraint("Coincident", 3, 2, 4, 1),
    Sketcher.Constraint("Coincident", 4, 2, 5, 1),
    Sketcher.Constraint("Coincident", 5, 2, 6, 1),
    Sketcher.Constraint("Coincident", 6, 2, 7, 1),
    Sketcher.Constraint("Coincident", 7, 2, 0, 1),
    Sketcher.Constraint("Horizontal", 0),
    Sketcher.Constraint("Vertical", 1),
    Sketcher.Constraint("Vertical", 3),
    Sketcher.Constraint("Horizontal", 4),
    Sketcher.Constraint("Vertical", 5),
    Sketcher.Constraint("Vertical", 7),
    Sketcher.Constraint("Parallel", 2, 6),
    Sketcher.Constraint("Equal", 4, 5),
    Sketcher.Constraint("DistanceX", 4, 1, 4, 2, Q("5 mm")),
    Sketcher.Constraint("Angle", 2, Q("45 deg")),
    Sketcher.Constraint("DistanceX", 0, 2, 0, 1, Q("2.5 mm")),
    Sketcher.Constraint("DistanceY", 0, 2, -1, 1, Q("12 mm")),
    Sketcher.Constraint("DistanceX", 2, 2, -1, 1, Q("23 mm")),
    Sketcher.Constraint("DistanceY", -1, 1, 3, 2, Q("34 mm")),
    Sketcher.Constraint("DistanceY", 7, 2, 7, 1, Q("34.25 mm")),
    Sketcher.Constraint("DistanceY", 1, 1, 1, 2, Q("38.821 mm")),
])
pocket11 = body.newObject("PartDesign::Pocket", "Pocket010")
pocket11.Profile = sketch18
pocket11.Length = 2.5
pocket11.Reversed = True
doc.recompute()

chamfer2 = body.newObject("PartDesign::Chamfer", "Chamfer001")
chamfer2.Base = (pocket11, edges_at(pocket11, [(-27.25, 2.75, -12), (-24.75, 2.75, -12)]))
chamfer2.Size = 2
doc.recompute()

fillet2 = body.newObject("PartDesign::Fillet", "Fillet001")
fillet2.Base = (chamfer2, edges_at(chamfer2, [
    (-23, 2.75, 34),
    (-18, 2.75, 34),
    (-18, 2.75, 29),
    (-24.75, 2.75, 22.25),
    (-24.75, 2.75, -10),
    (-22.75, 2.75, -12),
    (-29.25, 2.75, -12),
    (-27.25, 2.75, -10),
    (-27.25, 2.75, 26.821),
    (-23, 2.75, 31.071),
]))
fillet2.Radius = 2
doc.recompute()

fillet3 = body.newObject("PartDesign::Fillet", "Fillet002")
fillet3.Base = (fillet2, edges_at(fillet2, [
    (33.5, 2, 50),
    (-33.5, 2, 50),
    (33.5, 2, -50),
    (-33.5, 2, -50),
]))
fillet3.Radius = 2

doc.recompute()
